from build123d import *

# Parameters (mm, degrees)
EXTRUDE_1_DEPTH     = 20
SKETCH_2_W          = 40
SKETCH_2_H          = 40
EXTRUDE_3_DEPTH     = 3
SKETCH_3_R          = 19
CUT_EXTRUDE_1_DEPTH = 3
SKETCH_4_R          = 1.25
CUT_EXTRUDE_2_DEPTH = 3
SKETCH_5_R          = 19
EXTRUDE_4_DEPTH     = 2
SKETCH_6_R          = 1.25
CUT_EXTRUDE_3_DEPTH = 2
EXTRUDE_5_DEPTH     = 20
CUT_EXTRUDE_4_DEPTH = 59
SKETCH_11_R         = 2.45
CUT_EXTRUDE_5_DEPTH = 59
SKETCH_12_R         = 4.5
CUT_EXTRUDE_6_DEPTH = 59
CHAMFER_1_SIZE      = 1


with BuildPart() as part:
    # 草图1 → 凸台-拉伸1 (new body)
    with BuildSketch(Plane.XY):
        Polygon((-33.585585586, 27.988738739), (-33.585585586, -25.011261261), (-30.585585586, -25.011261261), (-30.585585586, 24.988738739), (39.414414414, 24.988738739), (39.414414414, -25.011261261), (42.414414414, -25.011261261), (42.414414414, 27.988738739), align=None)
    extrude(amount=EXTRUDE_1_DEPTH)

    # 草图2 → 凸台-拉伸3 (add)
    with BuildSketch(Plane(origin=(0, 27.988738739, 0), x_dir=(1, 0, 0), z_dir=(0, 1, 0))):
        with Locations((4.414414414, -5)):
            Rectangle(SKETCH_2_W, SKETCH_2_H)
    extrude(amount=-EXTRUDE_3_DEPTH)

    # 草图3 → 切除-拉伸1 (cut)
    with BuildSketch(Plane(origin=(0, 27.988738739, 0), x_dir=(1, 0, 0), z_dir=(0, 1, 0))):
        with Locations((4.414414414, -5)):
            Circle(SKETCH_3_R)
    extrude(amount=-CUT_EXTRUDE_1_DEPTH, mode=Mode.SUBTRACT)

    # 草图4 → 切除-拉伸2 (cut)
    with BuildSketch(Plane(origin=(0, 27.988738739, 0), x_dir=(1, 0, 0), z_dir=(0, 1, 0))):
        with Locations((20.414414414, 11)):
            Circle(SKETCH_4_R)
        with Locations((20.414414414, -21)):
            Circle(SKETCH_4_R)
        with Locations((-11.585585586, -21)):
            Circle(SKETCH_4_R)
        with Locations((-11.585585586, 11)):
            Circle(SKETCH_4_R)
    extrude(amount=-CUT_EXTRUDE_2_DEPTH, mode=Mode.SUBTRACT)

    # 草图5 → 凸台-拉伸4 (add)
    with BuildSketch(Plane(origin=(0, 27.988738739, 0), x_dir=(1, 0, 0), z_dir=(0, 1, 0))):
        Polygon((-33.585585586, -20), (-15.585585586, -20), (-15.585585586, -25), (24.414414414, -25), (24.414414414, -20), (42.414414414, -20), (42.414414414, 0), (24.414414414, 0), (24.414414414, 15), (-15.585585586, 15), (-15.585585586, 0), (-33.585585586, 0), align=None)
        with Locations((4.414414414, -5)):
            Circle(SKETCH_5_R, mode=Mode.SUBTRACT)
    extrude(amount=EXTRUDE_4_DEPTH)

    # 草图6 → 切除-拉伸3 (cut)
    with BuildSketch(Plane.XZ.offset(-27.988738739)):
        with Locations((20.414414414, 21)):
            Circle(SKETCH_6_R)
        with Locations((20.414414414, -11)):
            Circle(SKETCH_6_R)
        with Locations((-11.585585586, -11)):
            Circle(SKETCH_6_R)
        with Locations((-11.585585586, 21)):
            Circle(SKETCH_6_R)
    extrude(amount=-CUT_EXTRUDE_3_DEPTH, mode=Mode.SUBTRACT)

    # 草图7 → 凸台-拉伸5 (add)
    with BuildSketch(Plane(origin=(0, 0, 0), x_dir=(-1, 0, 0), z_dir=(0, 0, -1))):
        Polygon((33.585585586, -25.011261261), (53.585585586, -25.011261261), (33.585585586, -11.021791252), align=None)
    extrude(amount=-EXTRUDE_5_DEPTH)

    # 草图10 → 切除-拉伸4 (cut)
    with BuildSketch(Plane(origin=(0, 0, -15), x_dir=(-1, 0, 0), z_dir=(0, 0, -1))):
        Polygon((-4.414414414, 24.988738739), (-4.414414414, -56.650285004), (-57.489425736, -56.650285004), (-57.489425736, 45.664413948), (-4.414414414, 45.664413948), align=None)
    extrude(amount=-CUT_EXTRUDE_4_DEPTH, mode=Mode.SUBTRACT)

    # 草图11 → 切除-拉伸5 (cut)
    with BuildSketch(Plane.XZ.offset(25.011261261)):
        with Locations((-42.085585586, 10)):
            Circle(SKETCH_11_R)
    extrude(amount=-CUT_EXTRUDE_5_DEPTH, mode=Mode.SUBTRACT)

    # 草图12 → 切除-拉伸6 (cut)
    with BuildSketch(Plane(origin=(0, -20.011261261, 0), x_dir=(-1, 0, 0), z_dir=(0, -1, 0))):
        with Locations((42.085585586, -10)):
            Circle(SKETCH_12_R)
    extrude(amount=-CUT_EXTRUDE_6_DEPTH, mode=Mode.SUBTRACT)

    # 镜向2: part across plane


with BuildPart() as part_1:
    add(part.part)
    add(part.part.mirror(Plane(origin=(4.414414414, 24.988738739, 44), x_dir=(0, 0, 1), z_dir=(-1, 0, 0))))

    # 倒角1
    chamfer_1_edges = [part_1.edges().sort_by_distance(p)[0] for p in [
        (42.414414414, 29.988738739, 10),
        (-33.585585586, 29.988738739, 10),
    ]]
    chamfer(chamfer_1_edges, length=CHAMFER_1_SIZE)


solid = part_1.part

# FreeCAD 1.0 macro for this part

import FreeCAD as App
import Part
import Sketcher
from FreeCAD import Vector
Q = App.Units.Quantity


def edges_at(feature, points):
    """Names of the edges that pass closest to the given points."""
    edges = feature.Shape.Edges
    near = lambda p: min(range(len(edges)), key=lambda i: edges[i].distToShape(Part.Vertex(*p))[0])
    return sorted({f"Edge{near(p) + 1}" for p in points})


def add_polygon(sketch, points):
    """Adds a closed chain of lines whose ends are joined by coincident constraints."""
    first, n = sketch.GeometryCount, len(points)
    for a, b in zip(points, points[1:] + points[:1]):
        sketch.addGeometry(Part.LineSegment(App.Vector(*a, 0), App.Vector(*b, 0)), False)
    for i in range(n):
        sketch.addConstraint(Sketcher.Constraint("Coincident", first + i, 2, first + (i + 1) % n, 1))

doc = App.newDocument("Part")
body = doc.addObject("PartDesign::Body", "Body")

sketch1 = body.newObject("Sketcher::SketchObject", "Sketch")
sketch1.AttachmentSupport = (doc.getObject("XY_Plane"), [""])
sketch1.MapMode = "FlatFace"
add_polygon(sketch1, [(-33.585586, 27.988739), (-33.585586, -25.011261), (-30.585586, -25.011261), (-30.585586, 24.988739), (39.414414, 24.988739), (39.414414, -25.011261), (42.414414, -25.011261), (42.414414, 27.988739)])
sketch1.addConstraint(Sketcher.Constraint("Vertical", 0))
sketch1.addConstraint(Sketcher.Constraint("Horizontal", 1))
sketch1.addConstraint(Sketcher.Constraint("Vertical", 2))
sketch1.addConstraint(Sketcher.Constraint("Horizontal", 3))
sketch1.addConstraint(Sketcher.Constraint("Vertical", 4))
sketch1.addConstraint(Sketcher.Constraint("Horizontal", 5))
sketch1.addConstraint(Sketcher.Constraint("Vertical", 6))
sketch1.addConstraint(Sketcher.Constraint("Horizontal", 7))
sketch1.addConstraint(Sketcher.Constraint("Horizontal", 1, 2, 4, 2))
sketch1.addConstraint(Sketcher.Constraint("Equal", 1, 5))
sketch1.addConstraint(Sketcher.Constraint("DistanceX", 1, 1, 1, 2, Q("3 mm")))
sketch1.addConstraint(Sketcher.Constraint("DistanceX", 3, 1, 3, 2, Q("70 mm")))
sketch1.addConstraint(Sketcher.Constraint("DistanceY", 0, 2, 0, 1, Q("53 mm")))
sketch1.addConstraint(Sketcher.Constraint("DistanceY", 2, 1, 2, 2, Q("50 mm")))
sketch1.addConstraint(Sketcher.Constraint("DistanceY", 0, 2, -1, 1, Q("25.011261 mm")))
sketch1.addConstraint(Sketcher.Constraint("DistanceX", 0, 2, -1, 1, Q("33.585586 mm")))
pad1 = body.newObject("PartDesign::Pad", "Pad")
pad1.Profile = sketch1
pad1.Length = 20

sketch2 = body.newObject("Sketcher::SketchObject", "Sketch001")
sketch2.AttachmentSupport = (doc.getObject("XZ_Plane"), [""])
sketch2.MapMode = "FlatFace"
sketch2.AttachmentOffset = App.Placement(Vector(0, 0, -27.988739), App.Rotation())
add_polygon(sketch2, [(-15.585586, -15), (-15.585586, 25), (24.414414, 25), (24.414414, -15)])
sketch2.addConstraint(Sketcher.Constraint("Vertical", 0))
sketch2.addConstraint(Sketcher.Constraint("Horizontal", 1))
sketch2.addConstraint(Sketcher.Constraint("Vertical", 2))
sketch2.addConstraint(Sketcher.Constraint("Horizontal", 3))
sketch2.addConstraint(Sketcher.Constraint("Equal", 3, 0))
sketch2.addConstraint(Sketcher.Constraint("DistanceX", 1, 1, 1, 2, Q("40 mm")))
sketch2.addConstraint(Sketcher.Constraint("DistanceY", -1, 1, 0, 2, Q("25 mm")))
sketch2.addConstraint(Sketcher.Constraint("DistanceX", 0, 2, -1, 1, Q("15.585586 mm")))
pad2 = body.newObject("PartDesign::Pad", "Pad001")
pad2.Profile = sketch2
pad2.Length = 3

sketch3 = body.newObject("Sketcher::SketchObject", "Sketch002")
sketch3.AttachmentSupport = (doc.getObject("XZ_Plane"), [""])
sketch3.MapMode = "FlatFace"
sketch3.AttachmentOffset = App.Placement(Vector(0, 0, -27.988739), App.Rotation())
sketch3.addGeometry(Part.Circle(Vector(4.414414, 5, 0), Vector(0, 0, 1), 19), False)
sketch3.addConstraint(Sketcher.Constraint("Diameter", 0, Q("38 mm")))
sketch3.addConstraint(Sketcher.Constraint("DistanceY", -1, 1, 0, 3, Q("5 mm")))
sketch3.addConstraint(Sketcher.Constraint("DistanceX", -1, 1, 0, 3, Q("4.414414 mm")))
pocket1 = body.newObject("PartDesign::Pocket", "Pocket")
pocket1.Profile = sketch3
pocket1.Length = 3
pocket1.Reversed = True

sketch4 = body.newObject("Sketcher::SketchObject", "Sketch003")
sketch4.AttachmentSupport = (doc.getObject("XZ_Plane"), [""])
sketch4.MapMode = "FlatFace"
sketch4.AttachmentOffset = App.Placement(Vector(0, 0, -27.988739), App.Rotation())
sketch4.addGeometry(Part.Circle(Vector(20.414414, -11, 0), Vector(0, 0, 1), 1.25), False)
sketch4.addGeometry(Part.Circle(Vector(20.414414, 21, 0), Vector(0, 0, 1), 1.25), False)
sketch4.addGeometry(Part.Circle(Vector(-11.585586, 21, 0), Vector(0, 0, 1), 1.25), False)
sketch4.addGeometry(Part.Circle(Vector(-11.585586, -11, 0), Vector(0, 0, 1), 1.25), False)
sketch4.addConstraint(Sketcher.Constraint("Equal", 0, 1))
sketch4.addConstraint(Sketcher.Constraint("Equal", 1, 2))
sketch4.addConstraint(Sketcher.Constraint("Equal", 2, 3))
sketch4.addConstraint(Sketcher.Constraint("Horizontal", 1, 3, 2, 3))
sketch4.addConstraint(Sketcher.Constraint("Horizontal", 0, 3, 3, 3))
sketch4.addConstraint(Sketcher.Constraint("Vertical", 0, 3, 1, 3))
sketch4.addConstraint(Sketcher.Constraint("Vertical", 2, 3, 3, 3))
sketch4.addConstraint(Sketcher.Constraint("Diameter", 0, Q("2.5 mm")))
sketch4.addConstraint(Sketcher.Constraint("DistanceY", 0, 3, -1, 1, Q("11 mm")))
sketch4.addConstraint(Sketcher.Constraint("DistanceY", -1, 1, 1, 3, Q("21 mm")))
sketch4.addConstraint(Sketcher.Constraint("DistanceX", 2, 3, 1, 3, Q("32 mm")))
sketch4.addConstraint(Sketcher.Constraint("DistanceX", -1, 1, 0, 3, Q("20.414414 mm")))
pocket2 = body.newObject("PartDesign::Pocket", "Pocket001")
pocket2.Profile = sketch4
pocket2.Length = 3
pocket2.Reversed = True

sketch5 = body.newObject("Sketcher::SketchObject", "Sketch004")
sketch5.AttachmentSupport = (doc.getObject("XZ_Plane"), [""])
sketch5.MapMode = "FlatFace"
sketch5.AttachmentOffset = App.Placement(Vector(0, 0, -27.988739), App.Rotation())
add_polygon(sketch5, [(-33.585586, 20), (-15.585586, 20), (-15.585586, 25), (24.414414, 25), (24.414414, 20), (42.414414, 20), (42.414414, 0), (24.414414, 0), (24.414414, -15), (-15.585586, -15), (-15.585586, 0), (-33.585586, 0)])
sketch5.addGeometry(Part.Circle(Vector(4.414414, 5, 0), Vector(0, 0, 1), 19), False)
sketch5.addConstraint(Sketcher.Constraint("Horizontal", 0))
sketch5.addConstraint(Sketcher.Constraint("Vertical", 1))
sketch5.addConstraint(Sketcher.Constraint("Horizontal", 2))
sketch5.addConstraint(Sketcher.Constraint("Vertical", 3))
sketch5.addConstraint(Sketcher.Constraint("Horizontal", 4))
sketch5.addConstraint(Sketcher.Constraint("Vertical", 5))
sketch5.addConstraint(Sketcher.Constraint("Horizontal", 6))
sketch5.addConstraint(Sketcher.Constraint("Vertical", 7))
sketch5.addConstraint(Sketcher.Constraint("Horizontal", 8))
sketch5.addConstraint(Sketcher.Constraint("Vertical", 9))
sketch5.addConstraint(Sketcher.Constraint("Horizontal", 10))
sketch5.addConstraint(Sketcher.Constraint("Vertical", 11))
sketch5.addConstraint(Sketcher.Constraint("PointOnObject", 5, 2, -1))
sketch5.addConstraint(Sketcher.Constraint("PointOnObject", 9, 2, -1))
sketch5.addConstraint(Sketcher.Constraint("Horizontal", 0, 2, 3, 2))
sketch5.addConstraint(Sketcher.Constraint("Vertical", 3, 2, 6, 2))
sketch5.addConstraint(Sketcher.Constraint("Vertical", 1, 2, 8, 2))
sketch5.addConstraint(Sketcher.Constraint("Equal", 0, 4))
sketch5.addConstraint(Sketcher.Constraint("Diameter", 12, Q("38 mm")))
sketch5.addConstraint(Sketcher.Constraint("DistanceX", 0, 1, 0, 2, Q("18 mm")))
sketch5.addConstraint(Sketcher.Constraint("DistanceX", 2, 1, 2, 2, Q("40 mm")))
sketch5.addConstraint(Sketcher.Constraint("DistanceY", 1, 1, 1, 2, Q("5 mm")))
sketch5.addConstraint(Sketcher.Constraint("DistanceY", 5, 2, 5, 1, Q("20 mm")))
sketch5.addConstraint(Sketcher.Constraint("DistanceY", 7, 2, 7, 1, Q("15 mm")))
sketch5.addConstraint(Sketcher.Constraint("DistanceY", -1, 1, 12, 3, Q("5 mm")))
sketch5.addConstraint(Sketcher.Constraint("DistanceX", 0, 2, 12, 3, Q("20 mm")))
sketch5.addConstraint(Sketcher.Constraint("DistanceX", -1, 1, 12, 3, Q("4.414414 mm")))
pad3 = body.newObject("PartDesign::Pad", "Pad002")
pad3.Profile = sketch5
pad3.Length = 2
pad3.Reversed = True

sketch6 = body.newObject("Sketcher::SketchObject", "Sketch005")
sketch6.AttachmentSupport = (doc.getObject("XZ_Plane"), [""])
sketch6.MapMode = "FlatFace"
sketch6.AttachmentOffset = App.Placement(Vector(0, 0, -27.988739), App.Rotation())
sketch6.addGeometry(Part.Circle(Vector(20.414414, 21, 0), Vector(0, 0, 1), 1.25), False)
sketch6.addGeometry(Part.Circle(Vector(20.414414, -11, 0), Vector(0, 0, 1), 1.25), False)
sketch6.addGeometry(Part.Circle(Vector(-11.585586, -11, 0), Vector(0, 0, 1), 1.25), False)
sketch6.addGeometry(Part.Circle(Vector(-11.585586, 21, 0), Vector(0, 0, 1), 1.25), False)
sketch6.addConstraint(Sketcher.Constraint("Equal", 0, 1))
sketch6.addConstraint(Sketcher.Constraint("Equal", 1, 2))
sketch6.addConstraint(Sketcher.Constraint("Equal", 2, 3))
sketch6.addConstraint(Sketcher.Constraint("Horizontal", 1, 3, 2, 3))
sketch6.addConstraint(Sketcher.Constraint("Horizontal", 0, 3, 3, 3))
sketch6.addConstraint(Sketcher.Constraint("Vertical", 0, 3, 1, 3))
sketch6.addConstraint(Sketcher.Constraint("Vertical", 2, 3, 3, 3))
sketch6.addConstraint(Sketcher.Constraint("Diameter", 0, Q("2.5 mm")))
sketch6.addConstraint(Sketcher.Constraint("DistanceY", -1, 1, 0, 3, Q("21 mm")))
sketch6.addConstraint(Sketcher.Constraint("DistanceY", 1, 3, -1, 1, Q("11 mm")))
sketch6.addConstraint(Sketcher.Constraint("DistanceX", 2, 3, 1, 3, Q("32 mm")))
sketch6.addConstraint(Sketcher.Constraint("DistanceX", -1, 1, 0, 3, Q("20.414414 mm")))
pocket3 = body.newObject("PartDesign::Pocket", "Pocket002")
pocket3.Profile = sketch6
pocket3.Length = 2

sketch7 = body.newObject("Sketcher::SketchObject", "Sketch006")
sketch7.AttachmentSupport = (doc.getObject("XY_Plane"), [""])
sketch7.MapMode = "FlatFace"
add_polygon(sketch7, [(-33.585586, -25.011261), (-53.585586, -25.011261), (-33.585586, -11.021791)])
sketch7.addConstraint(Sketcher.Constraint("Horizontal", 0))
sketch7.addConstraint(Sketcher.Constraint("Vertical", 2))
sketch7.addConstraint(Sketcher.Constraint("DistanceX", 0, 2, 0, 1, Q("20 mm")))
sketch7.addConstraint(Sketcher.Constraint("DistanceY", 2, 2, 2, 1, Q("13.98947 mm")))
sketch7.addConstraint(Sketcher.Constraint("DistanceY", 0, 2, -1, 1, Q("25.011261 mm")))
sketch7.addConstraint(Sketcher.Constraint("DistanceX", 0, 2, -1, 1, Q("53.585586 mm")))
pad4 = body.newObject("PartDesign::Pad", "Pad003")
pad4.Profile = sketch7
pad4.Length = 20

sketch8 = body.newObject("Sketcher::SketchObject", "Sketch007")
sketch8.AttachmentSupport = (doc.getObject("XY_Plane"), [""])
sketch8.MapMode = "FlatFace"
sketch8.AttachmentOffset = App.Placement(Vector(0, 0, -15), App.Rotation())
add_polygon(sketch8, [(4.414414, -56.650285), (4.414414, 45.664414), (57.489426, 45.664414), (57.489426, -56.650285)])
sketch8.addConstraint(Sketcher.Constraint("Vertical", 0))
sketch8.addConstraint(Sketcher.Constraint("Horizontal", 1))
sketch8.addConstraint(Sketcher.Constraint("Vertical", 2))
sketch8.addConstraint(Sketcher.Constraint("Horizontal", 3))
sketch8.addConstraint(Sketcher.Constraint("DistanceY", 0, 1, 0, 2, Q("102.314699 mm")))
sketch8.addConstraint(Sketcher.Constraint("DistanceX", 1, 1, 1, 2, Q("53.075011 mm")))
sketch8.addConstraint(Sketcher.Constraint("DistanceX", -1, 1, 0, 2, Q("4.414414 mm")))
sketch8.addConstraint(Sketcher.Constraint("DistanceY", -1, 1, 0, 2, Q("45.664414 mm")))
pocket4 = body.newObject("PartDesign::Pocket", "Pocket003")
pocket4.Profile = sketch8
pocket4.Length = 59
pocket4.Reversed = True

sketch9 = body.newObject("Sketcher::SketchObject", "Sketch008")
sketch9.AttachmentSupport = (doc.getObject("XZ_Plane"), [""])
sketch9.MapMode = "FlatFace"
sketch9.AttachmentOffset = App.Placement(Vector(0, 0, 25.011261), App.Rotation())
sketch9.addGeometry(Part.Circle(Vector(-42.085586, 10, 0), Vector(0, 0, 1), 2.45), False)
sketch9.addConstraint(Sketcher.Constraint("Diameter", 0, Q("4.9 mm")))
sketch9.addConstraint(Sketcher.Constraint("DistanceY", -1, 1, 0, 3, Q("10 mm")))
sketch9.addConstraint(Sketcher.Constraint("DistanceX", 0, 3, -1, 1, Q("42.085586 mm")))
pocket5 = body.newObject("PartDesign::Pocket", "Pocket004")
pocket5.Profile = sketch9
pocket5.Length = 59

sketch10 = body.newObject("Sketcher::SketchObject", "Sketch009")
sketch10.AttachmentSupport = (doc.getObject("XZ_Plane"), [""])
sketch10.MapMode = "FlatFace"
sketch10.AttachmentOffset = App.Placement(Vector(0, 0, 20.011261), App.Rotation())
sketch10.addGeometry(Part.Circle(Vector(-42.085586, 10, 0), Vector(0, 0, 1), 4.5), False)
sketch10.addConstraint(Sketcher.Constraint("Diameter", 0, Q("9 mm")))
sketch10.addConstraint(Sketcher.Constraint("DistanceY", -1, 1, 0, 3, Q("10 mm")))
sketch10.addConstraint(Sketcher.Constraint("DistanceX", 0, 3, -1, 1, Q("42.085586 mm")))
pocket6 = body.newObject("PartDesign::Pocket", "Pocket005")
pocket6.Profile = sketch10
pocket6.Length = 59
body2 = doc.addObject("PartDesign::Body", "Body001")
doc.recompute()

body2.BaseFeature = body
doc.recompute()

mirroring = doc.addObject("Part::Mirroring", "Mirroring")
mirroring.Source = body
mirroring.Base = Vector(4.414414, 24.988739, 44)
mirroring.Normal = Vector(-1, 0, 0)
body3 = doc.addObject("PartDesign::Body", "Body002")
body3.BaseFeature = mirroring
boolean = body2.newObject("PartDesign::Boolean", "Boolean")
boolean.Type = "Fuse"
boolean.addObjects([body3])
doc.recompute()

chamfer = body2.newObject("PartDesign::Chamfer", "Chamfer")
chamfer.Base = (boolean, edges_at(boolean, [(42.414, 29.989, 10), (-33.586, 29.989, 10)]))
chamfer.Size = 1
mirroring.Visibility = False

doc.recompute()
